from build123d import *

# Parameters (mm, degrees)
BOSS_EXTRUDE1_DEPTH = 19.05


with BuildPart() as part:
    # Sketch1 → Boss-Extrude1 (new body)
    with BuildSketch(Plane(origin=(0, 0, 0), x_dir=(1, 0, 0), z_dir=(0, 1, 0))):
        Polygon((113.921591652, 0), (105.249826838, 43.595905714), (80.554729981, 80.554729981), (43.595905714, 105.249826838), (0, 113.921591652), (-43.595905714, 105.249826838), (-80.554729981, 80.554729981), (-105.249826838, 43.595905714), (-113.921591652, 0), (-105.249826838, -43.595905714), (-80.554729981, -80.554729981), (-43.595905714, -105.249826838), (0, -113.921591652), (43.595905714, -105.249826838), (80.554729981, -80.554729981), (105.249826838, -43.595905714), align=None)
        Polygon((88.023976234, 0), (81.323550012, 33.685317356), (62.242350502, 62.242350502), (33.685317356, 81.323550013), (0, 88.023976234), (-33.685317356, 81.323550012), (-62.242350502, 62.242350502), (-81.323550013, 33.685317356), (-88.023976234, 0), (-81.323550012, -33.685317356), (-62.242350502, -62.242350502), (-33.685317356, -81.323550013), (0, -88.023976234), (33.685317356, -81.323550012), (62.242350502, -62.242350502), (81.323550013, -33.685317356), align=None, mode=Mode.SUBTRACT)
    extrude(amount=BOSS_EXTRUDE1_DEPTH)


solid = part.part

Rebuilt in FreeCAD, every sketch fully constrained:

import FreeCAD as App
import Part
import Sketcher
Q = App.Units.Quantity

doc = App.newDocument("Part")
body = doc.addObject("PartDesign::Body", "Body")

# Sketch on XZ plane
sketch1 = body.newObject("Sketcher::SketchObject", "Sketch")
sketch1.AttachmentSupport = (doc.getObject("XZ_Plane"), [""])
sketch1.MapMode = "FlatFace"
sketch1.addGeometry(Part.LineSegment(App.Vector(114, 0, 0), App.Vector(105, -44, 0)), False)
sketch1.addGeometry(Part.LineSegment(App.Vector(105, -44, 0), App.Vector(81, -81, 0)), False)
sketch1.addGeometry(Part.LineSegment(App.Vector(81, -81, 0), App.Vector(44, -105, 0)), False)
sketch1.addGeometry(Part.LineSegment(App.Vector(44, -105, 0), App.Vector(0, -114, 0)), False)
sketch1.addGeometry(Part.LineSegment(App.Vector(0, -114, 0), App.Vector(-44, -105, 0)), False)
sketch1.addGeometry(Part.LineSegment(App.Vector(-44, -105, 0), App.Vector(-81, -81, 0)), False)
sketch1.addGeometry(Part.LineSegment(App.Vector(-81, -81, 0), App.Vector(-105, -44, 0)), False)
sketch1.addGeometry(Part.LineSegment(App.Vector(-105, -44, 0), App.Vector(-114, 0, 0)), False)
sketch1.addGeometry(Part.LineSegment(App.Vector(-114, 0, 0), App.Vector(-105, 44, 0)), False)
sketch1.addGeometry(Part.LineSegment(App.Vector(-105, 44, 0), App.Vector(-81, 81, 0)), False)
sketch1.addGeometry(Part.LineSegment(App.Vector(-81, 81, 0), App.Vector(-44, 105, 0)), False)
sketch1.addGeometry(Part.LineSegment(App.Vector(-44, 105, 0), App.Vector(0, 114, 0)), False)
sketch1.addGeometry(Part.LineSegment(App.Vector(0, 114, 0), App.Vector(44, 105, 0)), False)
sketch1.addGeometry(Part.LineSegment(App.Vector(44, 105, 0), App.Vector(81, 81, 0)), False)
sketch1.addGeometry(Part.LineSegment(App.Vector(81, 81, 0), App.Vector(105, 44, 0)), False)
sketch1.addGeometry(Part.LineSegment(App.Vector(105, 44, 0), App.Vector(114, 0, 0)), False)
sketch1.addGeometry(Part.LineSegment(App.Vector(81, -34, 0), App.Vector(88, 0, 0)), False)
sketch1.addGeometry(Part.LineSegment(App.Vector(88, 0, 0), App.Vector(81, 34, 0)), False)
sketch1.addGeometry(Part.LineSegment(App.Vector(81, 34, 0), App.Vector(62, 62, 0)), False)
sketch1.addGeometry(Part.LineSegment(App.Vector(62, 62, 0), App.Vector(34, 81, 0)), False)
sketch1.addGeometry(Part.LineSegment(App.Vector(34, 81, 0), App.Vector(0, 88, 0)), False)
sketch1.addGeometry(Part.LineSegment(App.Vector(0, 88, 0), App.Vector(-34, 81, 0)), False)
sketch1.addGeometry(Part.LineSegment(App.Vector(-34, 81, 0), App.Vector(-62, 62, 0)), False)
sketch1.addGeometry(Part.LineSegment(App.Vector(-62, 62, 0), App.Vector(-81, 34, 0)), False)
sketch1.addGeometry(Part.LineSegment(App.Vector(-81, 34, 0), App.Vector(-88, 0, 0)), False)
sketch1.addGeometry(Part.LineSegment(App.Vector(-88, 0, 0), App.Vector(-81, -34, 0)), False)
sketch1.addGeometry(Part.LineSegment(App.Vector(-81, -34, 0), App.Vector(-62, -62, 0)), False)
sketch1.addGeometry(Part.LineSegment(App.Vector(-62, -62, 0), App.Vector(-34, -81, 0)), False)
sketch1.addGeometry(Part.LineSegment(App.Vector(-34, -81, 0), App.Vector(0, -88, 0)), False)
sketch1.addGeometry(Part.LineSegment(App.Vector(0, -88, 0), App.Vector(34, -81, 0)), False)
sketch1.addGeometry(Part.LineSegment(App.Vector(34, -81, 0), App.Vector(62, -62, 0)), False)
sketch1.addGeometry(Part.LineSegment(App.Vector(62, -62, 0), App.Vector(81, -34, 0)), False)
sketch1.addConstraint(Sketcher.Constraint("Coincident", 0, 2, 1, 1))
sketch1.addConstraint(Sketcher.Constraint("Coincident", 1, 2, 2, 1))
sketch1.addConstraint(Sketcher.Constraint("Coincident", 2, 2, 3, 1))
sketch1.addConstraint(Sketcher.Constraint("Coincident", 3, 2, 4, 1))
sketch1.addConstraint(Sketcher.Constraint("Coincident", 4, 2, 5, 1))
sketch1.addConstraint(Sketcher.Constraint("Coincident", 5, 2, 6, 1))
sketch1.addConstraint(Sketcher.Constraint("Coincident", 6, 2, 7, 1))
sketch1.addConstraint(Sketcher.Constraint("Coincident", 7, 2, 8, 1))
sketch1.addConstraint(Sketcher.Constraint("Coincident", 8, 2, 9, 1))
sketch1.addConstraint(Sketcher.Constraint("Coincident", 9, 2, 10, 1))
sketch1.addConstraint(Sketcher.Constraint("Coincident", 10, 2, 11, 1))
sketch1.addConstraint(Sketcher.Constraint("Coincident", 11, 2, 12, 1))
sketch1.addConstraint(Sketcher.Constraint("Coincident", 12, 2, 13, 1))
sketch1.addConstraint(Sketcher.Constraint("Coincident", 13, 2, 14, 1))
sketch1.addConstraint(Sketcher.Constraint("Coincident", 14, 2, 15, 1))
sketch1.addConstraint(Sketcher.Constraint("Coincident", 15, 2, 0, 1))
sketch1.addConstraint(Sketcher.Constraint("Coincident", 16, 2, 17, 1))
sketch1.addConstraint(Sketcher.Constraint("Coincident", 17, 2, 18, 1))
sketch1.addConstraint(Sketcher.Constraint("Coincident", 18, 2, 19, 1))
sketch1.addConstraint(Sketcher.Constraint("Coincident", 19, 2, 20, 1))
sketch1.addConstraint(Sketcher.Constraint("Coincident", 20, 2, 21, 1))
sketch1.addConstraint(Sketcher.Constraint("Coincident", 21, 2, 22, 1))
sketch1.addConstraint(Sketcher.Constraint("Coincident", 22, 2, 23, 1))
sketch1.addConstraint(Sketcher.Constraint("Coincident", 23, 2, 24, 1))
sketch1.addConstraint(Sketcher.Constraint("Coincident", 24, 2, 25, 1))
sketch1.addConstraint(Sketcher.Constraint("Coincident", 25, 2, 26, 1))
sketch1.addConstraint(Sketcher.Constraint("Coincident", 26, 2, 27, 1))
sketch1.addConstraint(Sketcher.Constraint("Coincident", 27, 2, 28, 1))
sketch1.addConstraint(Sketcher.Constraint("Coincident", 28, 2, 29, 1))
sketch1.addConstraint(Sketcher.Constraint("Coincident", 29, 2, 30, 1))
sketch1.addConstraint(Sketcher.Constraint("Coincident", 30, 2, 31, 1))
sketch1.addConstraint(Sketcher.Constraint("Coincident", 31, 2, 16, 1))
sketch1.addConstraint(Sketcher.Constraint("Symmetric", 0, 2, 8, 2, -1, 1))
sketch1.addConstraint(Sketcher.Constraint("Symmetric", 1, 2, 9, 2, -1, 1))
sketch1.addConstraint(Sketcher.Constraint("Symmetric", 2, 2, 10, 2, -1, 1))
sketch1.addConstraint(Sketcher.Constraint("Symmetric", 3, 2, 11, 2, -1, 1))
sketch1.addConstraint(Sketcher.Constraint("Symmetric", 4, 2, 12, 2, -1, 1))
sketch1.addConstraint(Sketcher.Constraint("Symmetric", 5, 2, 13, 2, -1, 1))
sketch1.addConstraint(Sketcher.Constraint("Symmetric", 6, 2, 14, 2, -1, 1))
sketch1.addConstraint(Sketcher.Constraint("Symmetric", 7, 2, 15, 2, -1, 1))
sketch1.addConstraint(Sketcher.Constraint("Symmetric", 16, 2, 24, 2, -1, 1))
sketch1.addConstraint(Sketcher.Constraint("Symmetric", 17, 2, 25, 2, -1, 1))
sketch1.addConstraint(Sketcher.Constraint("Symmetric", 18, 2, 26, 2, -1, 1))
sketch1.addConstraint(Sketcher.Constraint("Symmetric", 19, 2, 27, 2, -1, 1))
sketch1.addConstraint(Sketcher.Constraint("Symmetric", 20, 2, 28, 2, -1, 1))
sketch1.addConstraint(Sketcher.Constraint("Symmetric", 21, 2, 29, 2, -1, 1))
sketch1.addConstraint(Sketcher.Constraint("Symmetric", 22, 2, 30, 2, -1, 1))
sketch1.addConstraint(Sketcher.Constraint("Symmetric", 23, 2, 31, 2, -1, 1))
sketch1.addConstraint(Sketcher.Constraint("Symmetric", 2, 2, 4, 2, -2))
sketch1.addConstraint(Sketcher.Constraint("Symmetric", 1, 2, 5, 2, -2))
sketch1.addConstraint(Sketcher.Constraint("Symmetric", 0, 2, 6, 2, -2))
sketch1.addConstraint(Sketcher.Constraint("Symmetric", 19, 2, 21, 2, -2))
sketch1.addConstraint(Sketcher.Constraint("Symmetric", 18, 2, 22, 2, -2))
sketch1.addConstraint(Sketcher.Constraint("Symmetric", 17, 2, 23, 2, -2))
sketch1.addConstraint(Sketcher.Constraint("PointOnObject", 3, 2, -2))
sketch1.addConstraint(Sketcher.Constraint("PointOnObject", 7, 2, -1))
sketch1.addConstraint(Sketcher.Constraint("PointOnObject", 16, 2, -1))
sketch1.addConstraint(Sketcher.Constraint("PointOnObject", 20, 2, -2))
sketch1.addConstraint(Sketcher.Constraint("Perpendicular", 0, 4))
sketch1.addConstraint(Sketcher.Constraint("Perpendicular", 1, 5))
sketch1.addConstraint(Sketcher.Constraint("Perpendicular", 12, 16))
sketch1.addConstraint(Sketcher.Constraint("Parallel", 14, 18))
sketch1.addConstraint(Sketcher.Constraint("Parallel", 13, 19))
sketch1.addConstraint(Sketcher.Constraint("Perpendicular", 16, 20))
sketch1.addConstraint(Sketcher.Constraint("Equal", 0, 1))
sketch1.addConstraint(Sketcher.Constraint("Equal", 1, 2))
sketch1.addConstraint(Sketcher.Constraint("Equal", 2, 3))
sketch1.addConstraint(Sketcher.Constraint("Equal", 17, 18))
sketch1.addConstraint(Sketcher.Constraint("Equal", 18, 19))
sketch1.addConstraint(Sketcher.Constraint("Equal", 19, 20))
sketch1.addConstraint(Sketcher.Constraint("Distance", 0, Q("1.75 in")))
sketch1.addConstraint(Sketcher.Constraint("Angle", 0, Q("-101.25 deg")))
sketch1.addConstraint(Sketcher.Constraint("Angle", 1, Q("-123.75 deg")))
sketch1.addConstraint(Sketcher.Constraint("DistanceX", 18, 2, 17, 2, Q("19.0812 mm")))
pad1 = body.newObject("PartDesign::Pad", "Pad")
pad1.Profile = sketch1
pad1.Length = Q("0.75 in")
pad1.Reversed = True

doc.recompute()
